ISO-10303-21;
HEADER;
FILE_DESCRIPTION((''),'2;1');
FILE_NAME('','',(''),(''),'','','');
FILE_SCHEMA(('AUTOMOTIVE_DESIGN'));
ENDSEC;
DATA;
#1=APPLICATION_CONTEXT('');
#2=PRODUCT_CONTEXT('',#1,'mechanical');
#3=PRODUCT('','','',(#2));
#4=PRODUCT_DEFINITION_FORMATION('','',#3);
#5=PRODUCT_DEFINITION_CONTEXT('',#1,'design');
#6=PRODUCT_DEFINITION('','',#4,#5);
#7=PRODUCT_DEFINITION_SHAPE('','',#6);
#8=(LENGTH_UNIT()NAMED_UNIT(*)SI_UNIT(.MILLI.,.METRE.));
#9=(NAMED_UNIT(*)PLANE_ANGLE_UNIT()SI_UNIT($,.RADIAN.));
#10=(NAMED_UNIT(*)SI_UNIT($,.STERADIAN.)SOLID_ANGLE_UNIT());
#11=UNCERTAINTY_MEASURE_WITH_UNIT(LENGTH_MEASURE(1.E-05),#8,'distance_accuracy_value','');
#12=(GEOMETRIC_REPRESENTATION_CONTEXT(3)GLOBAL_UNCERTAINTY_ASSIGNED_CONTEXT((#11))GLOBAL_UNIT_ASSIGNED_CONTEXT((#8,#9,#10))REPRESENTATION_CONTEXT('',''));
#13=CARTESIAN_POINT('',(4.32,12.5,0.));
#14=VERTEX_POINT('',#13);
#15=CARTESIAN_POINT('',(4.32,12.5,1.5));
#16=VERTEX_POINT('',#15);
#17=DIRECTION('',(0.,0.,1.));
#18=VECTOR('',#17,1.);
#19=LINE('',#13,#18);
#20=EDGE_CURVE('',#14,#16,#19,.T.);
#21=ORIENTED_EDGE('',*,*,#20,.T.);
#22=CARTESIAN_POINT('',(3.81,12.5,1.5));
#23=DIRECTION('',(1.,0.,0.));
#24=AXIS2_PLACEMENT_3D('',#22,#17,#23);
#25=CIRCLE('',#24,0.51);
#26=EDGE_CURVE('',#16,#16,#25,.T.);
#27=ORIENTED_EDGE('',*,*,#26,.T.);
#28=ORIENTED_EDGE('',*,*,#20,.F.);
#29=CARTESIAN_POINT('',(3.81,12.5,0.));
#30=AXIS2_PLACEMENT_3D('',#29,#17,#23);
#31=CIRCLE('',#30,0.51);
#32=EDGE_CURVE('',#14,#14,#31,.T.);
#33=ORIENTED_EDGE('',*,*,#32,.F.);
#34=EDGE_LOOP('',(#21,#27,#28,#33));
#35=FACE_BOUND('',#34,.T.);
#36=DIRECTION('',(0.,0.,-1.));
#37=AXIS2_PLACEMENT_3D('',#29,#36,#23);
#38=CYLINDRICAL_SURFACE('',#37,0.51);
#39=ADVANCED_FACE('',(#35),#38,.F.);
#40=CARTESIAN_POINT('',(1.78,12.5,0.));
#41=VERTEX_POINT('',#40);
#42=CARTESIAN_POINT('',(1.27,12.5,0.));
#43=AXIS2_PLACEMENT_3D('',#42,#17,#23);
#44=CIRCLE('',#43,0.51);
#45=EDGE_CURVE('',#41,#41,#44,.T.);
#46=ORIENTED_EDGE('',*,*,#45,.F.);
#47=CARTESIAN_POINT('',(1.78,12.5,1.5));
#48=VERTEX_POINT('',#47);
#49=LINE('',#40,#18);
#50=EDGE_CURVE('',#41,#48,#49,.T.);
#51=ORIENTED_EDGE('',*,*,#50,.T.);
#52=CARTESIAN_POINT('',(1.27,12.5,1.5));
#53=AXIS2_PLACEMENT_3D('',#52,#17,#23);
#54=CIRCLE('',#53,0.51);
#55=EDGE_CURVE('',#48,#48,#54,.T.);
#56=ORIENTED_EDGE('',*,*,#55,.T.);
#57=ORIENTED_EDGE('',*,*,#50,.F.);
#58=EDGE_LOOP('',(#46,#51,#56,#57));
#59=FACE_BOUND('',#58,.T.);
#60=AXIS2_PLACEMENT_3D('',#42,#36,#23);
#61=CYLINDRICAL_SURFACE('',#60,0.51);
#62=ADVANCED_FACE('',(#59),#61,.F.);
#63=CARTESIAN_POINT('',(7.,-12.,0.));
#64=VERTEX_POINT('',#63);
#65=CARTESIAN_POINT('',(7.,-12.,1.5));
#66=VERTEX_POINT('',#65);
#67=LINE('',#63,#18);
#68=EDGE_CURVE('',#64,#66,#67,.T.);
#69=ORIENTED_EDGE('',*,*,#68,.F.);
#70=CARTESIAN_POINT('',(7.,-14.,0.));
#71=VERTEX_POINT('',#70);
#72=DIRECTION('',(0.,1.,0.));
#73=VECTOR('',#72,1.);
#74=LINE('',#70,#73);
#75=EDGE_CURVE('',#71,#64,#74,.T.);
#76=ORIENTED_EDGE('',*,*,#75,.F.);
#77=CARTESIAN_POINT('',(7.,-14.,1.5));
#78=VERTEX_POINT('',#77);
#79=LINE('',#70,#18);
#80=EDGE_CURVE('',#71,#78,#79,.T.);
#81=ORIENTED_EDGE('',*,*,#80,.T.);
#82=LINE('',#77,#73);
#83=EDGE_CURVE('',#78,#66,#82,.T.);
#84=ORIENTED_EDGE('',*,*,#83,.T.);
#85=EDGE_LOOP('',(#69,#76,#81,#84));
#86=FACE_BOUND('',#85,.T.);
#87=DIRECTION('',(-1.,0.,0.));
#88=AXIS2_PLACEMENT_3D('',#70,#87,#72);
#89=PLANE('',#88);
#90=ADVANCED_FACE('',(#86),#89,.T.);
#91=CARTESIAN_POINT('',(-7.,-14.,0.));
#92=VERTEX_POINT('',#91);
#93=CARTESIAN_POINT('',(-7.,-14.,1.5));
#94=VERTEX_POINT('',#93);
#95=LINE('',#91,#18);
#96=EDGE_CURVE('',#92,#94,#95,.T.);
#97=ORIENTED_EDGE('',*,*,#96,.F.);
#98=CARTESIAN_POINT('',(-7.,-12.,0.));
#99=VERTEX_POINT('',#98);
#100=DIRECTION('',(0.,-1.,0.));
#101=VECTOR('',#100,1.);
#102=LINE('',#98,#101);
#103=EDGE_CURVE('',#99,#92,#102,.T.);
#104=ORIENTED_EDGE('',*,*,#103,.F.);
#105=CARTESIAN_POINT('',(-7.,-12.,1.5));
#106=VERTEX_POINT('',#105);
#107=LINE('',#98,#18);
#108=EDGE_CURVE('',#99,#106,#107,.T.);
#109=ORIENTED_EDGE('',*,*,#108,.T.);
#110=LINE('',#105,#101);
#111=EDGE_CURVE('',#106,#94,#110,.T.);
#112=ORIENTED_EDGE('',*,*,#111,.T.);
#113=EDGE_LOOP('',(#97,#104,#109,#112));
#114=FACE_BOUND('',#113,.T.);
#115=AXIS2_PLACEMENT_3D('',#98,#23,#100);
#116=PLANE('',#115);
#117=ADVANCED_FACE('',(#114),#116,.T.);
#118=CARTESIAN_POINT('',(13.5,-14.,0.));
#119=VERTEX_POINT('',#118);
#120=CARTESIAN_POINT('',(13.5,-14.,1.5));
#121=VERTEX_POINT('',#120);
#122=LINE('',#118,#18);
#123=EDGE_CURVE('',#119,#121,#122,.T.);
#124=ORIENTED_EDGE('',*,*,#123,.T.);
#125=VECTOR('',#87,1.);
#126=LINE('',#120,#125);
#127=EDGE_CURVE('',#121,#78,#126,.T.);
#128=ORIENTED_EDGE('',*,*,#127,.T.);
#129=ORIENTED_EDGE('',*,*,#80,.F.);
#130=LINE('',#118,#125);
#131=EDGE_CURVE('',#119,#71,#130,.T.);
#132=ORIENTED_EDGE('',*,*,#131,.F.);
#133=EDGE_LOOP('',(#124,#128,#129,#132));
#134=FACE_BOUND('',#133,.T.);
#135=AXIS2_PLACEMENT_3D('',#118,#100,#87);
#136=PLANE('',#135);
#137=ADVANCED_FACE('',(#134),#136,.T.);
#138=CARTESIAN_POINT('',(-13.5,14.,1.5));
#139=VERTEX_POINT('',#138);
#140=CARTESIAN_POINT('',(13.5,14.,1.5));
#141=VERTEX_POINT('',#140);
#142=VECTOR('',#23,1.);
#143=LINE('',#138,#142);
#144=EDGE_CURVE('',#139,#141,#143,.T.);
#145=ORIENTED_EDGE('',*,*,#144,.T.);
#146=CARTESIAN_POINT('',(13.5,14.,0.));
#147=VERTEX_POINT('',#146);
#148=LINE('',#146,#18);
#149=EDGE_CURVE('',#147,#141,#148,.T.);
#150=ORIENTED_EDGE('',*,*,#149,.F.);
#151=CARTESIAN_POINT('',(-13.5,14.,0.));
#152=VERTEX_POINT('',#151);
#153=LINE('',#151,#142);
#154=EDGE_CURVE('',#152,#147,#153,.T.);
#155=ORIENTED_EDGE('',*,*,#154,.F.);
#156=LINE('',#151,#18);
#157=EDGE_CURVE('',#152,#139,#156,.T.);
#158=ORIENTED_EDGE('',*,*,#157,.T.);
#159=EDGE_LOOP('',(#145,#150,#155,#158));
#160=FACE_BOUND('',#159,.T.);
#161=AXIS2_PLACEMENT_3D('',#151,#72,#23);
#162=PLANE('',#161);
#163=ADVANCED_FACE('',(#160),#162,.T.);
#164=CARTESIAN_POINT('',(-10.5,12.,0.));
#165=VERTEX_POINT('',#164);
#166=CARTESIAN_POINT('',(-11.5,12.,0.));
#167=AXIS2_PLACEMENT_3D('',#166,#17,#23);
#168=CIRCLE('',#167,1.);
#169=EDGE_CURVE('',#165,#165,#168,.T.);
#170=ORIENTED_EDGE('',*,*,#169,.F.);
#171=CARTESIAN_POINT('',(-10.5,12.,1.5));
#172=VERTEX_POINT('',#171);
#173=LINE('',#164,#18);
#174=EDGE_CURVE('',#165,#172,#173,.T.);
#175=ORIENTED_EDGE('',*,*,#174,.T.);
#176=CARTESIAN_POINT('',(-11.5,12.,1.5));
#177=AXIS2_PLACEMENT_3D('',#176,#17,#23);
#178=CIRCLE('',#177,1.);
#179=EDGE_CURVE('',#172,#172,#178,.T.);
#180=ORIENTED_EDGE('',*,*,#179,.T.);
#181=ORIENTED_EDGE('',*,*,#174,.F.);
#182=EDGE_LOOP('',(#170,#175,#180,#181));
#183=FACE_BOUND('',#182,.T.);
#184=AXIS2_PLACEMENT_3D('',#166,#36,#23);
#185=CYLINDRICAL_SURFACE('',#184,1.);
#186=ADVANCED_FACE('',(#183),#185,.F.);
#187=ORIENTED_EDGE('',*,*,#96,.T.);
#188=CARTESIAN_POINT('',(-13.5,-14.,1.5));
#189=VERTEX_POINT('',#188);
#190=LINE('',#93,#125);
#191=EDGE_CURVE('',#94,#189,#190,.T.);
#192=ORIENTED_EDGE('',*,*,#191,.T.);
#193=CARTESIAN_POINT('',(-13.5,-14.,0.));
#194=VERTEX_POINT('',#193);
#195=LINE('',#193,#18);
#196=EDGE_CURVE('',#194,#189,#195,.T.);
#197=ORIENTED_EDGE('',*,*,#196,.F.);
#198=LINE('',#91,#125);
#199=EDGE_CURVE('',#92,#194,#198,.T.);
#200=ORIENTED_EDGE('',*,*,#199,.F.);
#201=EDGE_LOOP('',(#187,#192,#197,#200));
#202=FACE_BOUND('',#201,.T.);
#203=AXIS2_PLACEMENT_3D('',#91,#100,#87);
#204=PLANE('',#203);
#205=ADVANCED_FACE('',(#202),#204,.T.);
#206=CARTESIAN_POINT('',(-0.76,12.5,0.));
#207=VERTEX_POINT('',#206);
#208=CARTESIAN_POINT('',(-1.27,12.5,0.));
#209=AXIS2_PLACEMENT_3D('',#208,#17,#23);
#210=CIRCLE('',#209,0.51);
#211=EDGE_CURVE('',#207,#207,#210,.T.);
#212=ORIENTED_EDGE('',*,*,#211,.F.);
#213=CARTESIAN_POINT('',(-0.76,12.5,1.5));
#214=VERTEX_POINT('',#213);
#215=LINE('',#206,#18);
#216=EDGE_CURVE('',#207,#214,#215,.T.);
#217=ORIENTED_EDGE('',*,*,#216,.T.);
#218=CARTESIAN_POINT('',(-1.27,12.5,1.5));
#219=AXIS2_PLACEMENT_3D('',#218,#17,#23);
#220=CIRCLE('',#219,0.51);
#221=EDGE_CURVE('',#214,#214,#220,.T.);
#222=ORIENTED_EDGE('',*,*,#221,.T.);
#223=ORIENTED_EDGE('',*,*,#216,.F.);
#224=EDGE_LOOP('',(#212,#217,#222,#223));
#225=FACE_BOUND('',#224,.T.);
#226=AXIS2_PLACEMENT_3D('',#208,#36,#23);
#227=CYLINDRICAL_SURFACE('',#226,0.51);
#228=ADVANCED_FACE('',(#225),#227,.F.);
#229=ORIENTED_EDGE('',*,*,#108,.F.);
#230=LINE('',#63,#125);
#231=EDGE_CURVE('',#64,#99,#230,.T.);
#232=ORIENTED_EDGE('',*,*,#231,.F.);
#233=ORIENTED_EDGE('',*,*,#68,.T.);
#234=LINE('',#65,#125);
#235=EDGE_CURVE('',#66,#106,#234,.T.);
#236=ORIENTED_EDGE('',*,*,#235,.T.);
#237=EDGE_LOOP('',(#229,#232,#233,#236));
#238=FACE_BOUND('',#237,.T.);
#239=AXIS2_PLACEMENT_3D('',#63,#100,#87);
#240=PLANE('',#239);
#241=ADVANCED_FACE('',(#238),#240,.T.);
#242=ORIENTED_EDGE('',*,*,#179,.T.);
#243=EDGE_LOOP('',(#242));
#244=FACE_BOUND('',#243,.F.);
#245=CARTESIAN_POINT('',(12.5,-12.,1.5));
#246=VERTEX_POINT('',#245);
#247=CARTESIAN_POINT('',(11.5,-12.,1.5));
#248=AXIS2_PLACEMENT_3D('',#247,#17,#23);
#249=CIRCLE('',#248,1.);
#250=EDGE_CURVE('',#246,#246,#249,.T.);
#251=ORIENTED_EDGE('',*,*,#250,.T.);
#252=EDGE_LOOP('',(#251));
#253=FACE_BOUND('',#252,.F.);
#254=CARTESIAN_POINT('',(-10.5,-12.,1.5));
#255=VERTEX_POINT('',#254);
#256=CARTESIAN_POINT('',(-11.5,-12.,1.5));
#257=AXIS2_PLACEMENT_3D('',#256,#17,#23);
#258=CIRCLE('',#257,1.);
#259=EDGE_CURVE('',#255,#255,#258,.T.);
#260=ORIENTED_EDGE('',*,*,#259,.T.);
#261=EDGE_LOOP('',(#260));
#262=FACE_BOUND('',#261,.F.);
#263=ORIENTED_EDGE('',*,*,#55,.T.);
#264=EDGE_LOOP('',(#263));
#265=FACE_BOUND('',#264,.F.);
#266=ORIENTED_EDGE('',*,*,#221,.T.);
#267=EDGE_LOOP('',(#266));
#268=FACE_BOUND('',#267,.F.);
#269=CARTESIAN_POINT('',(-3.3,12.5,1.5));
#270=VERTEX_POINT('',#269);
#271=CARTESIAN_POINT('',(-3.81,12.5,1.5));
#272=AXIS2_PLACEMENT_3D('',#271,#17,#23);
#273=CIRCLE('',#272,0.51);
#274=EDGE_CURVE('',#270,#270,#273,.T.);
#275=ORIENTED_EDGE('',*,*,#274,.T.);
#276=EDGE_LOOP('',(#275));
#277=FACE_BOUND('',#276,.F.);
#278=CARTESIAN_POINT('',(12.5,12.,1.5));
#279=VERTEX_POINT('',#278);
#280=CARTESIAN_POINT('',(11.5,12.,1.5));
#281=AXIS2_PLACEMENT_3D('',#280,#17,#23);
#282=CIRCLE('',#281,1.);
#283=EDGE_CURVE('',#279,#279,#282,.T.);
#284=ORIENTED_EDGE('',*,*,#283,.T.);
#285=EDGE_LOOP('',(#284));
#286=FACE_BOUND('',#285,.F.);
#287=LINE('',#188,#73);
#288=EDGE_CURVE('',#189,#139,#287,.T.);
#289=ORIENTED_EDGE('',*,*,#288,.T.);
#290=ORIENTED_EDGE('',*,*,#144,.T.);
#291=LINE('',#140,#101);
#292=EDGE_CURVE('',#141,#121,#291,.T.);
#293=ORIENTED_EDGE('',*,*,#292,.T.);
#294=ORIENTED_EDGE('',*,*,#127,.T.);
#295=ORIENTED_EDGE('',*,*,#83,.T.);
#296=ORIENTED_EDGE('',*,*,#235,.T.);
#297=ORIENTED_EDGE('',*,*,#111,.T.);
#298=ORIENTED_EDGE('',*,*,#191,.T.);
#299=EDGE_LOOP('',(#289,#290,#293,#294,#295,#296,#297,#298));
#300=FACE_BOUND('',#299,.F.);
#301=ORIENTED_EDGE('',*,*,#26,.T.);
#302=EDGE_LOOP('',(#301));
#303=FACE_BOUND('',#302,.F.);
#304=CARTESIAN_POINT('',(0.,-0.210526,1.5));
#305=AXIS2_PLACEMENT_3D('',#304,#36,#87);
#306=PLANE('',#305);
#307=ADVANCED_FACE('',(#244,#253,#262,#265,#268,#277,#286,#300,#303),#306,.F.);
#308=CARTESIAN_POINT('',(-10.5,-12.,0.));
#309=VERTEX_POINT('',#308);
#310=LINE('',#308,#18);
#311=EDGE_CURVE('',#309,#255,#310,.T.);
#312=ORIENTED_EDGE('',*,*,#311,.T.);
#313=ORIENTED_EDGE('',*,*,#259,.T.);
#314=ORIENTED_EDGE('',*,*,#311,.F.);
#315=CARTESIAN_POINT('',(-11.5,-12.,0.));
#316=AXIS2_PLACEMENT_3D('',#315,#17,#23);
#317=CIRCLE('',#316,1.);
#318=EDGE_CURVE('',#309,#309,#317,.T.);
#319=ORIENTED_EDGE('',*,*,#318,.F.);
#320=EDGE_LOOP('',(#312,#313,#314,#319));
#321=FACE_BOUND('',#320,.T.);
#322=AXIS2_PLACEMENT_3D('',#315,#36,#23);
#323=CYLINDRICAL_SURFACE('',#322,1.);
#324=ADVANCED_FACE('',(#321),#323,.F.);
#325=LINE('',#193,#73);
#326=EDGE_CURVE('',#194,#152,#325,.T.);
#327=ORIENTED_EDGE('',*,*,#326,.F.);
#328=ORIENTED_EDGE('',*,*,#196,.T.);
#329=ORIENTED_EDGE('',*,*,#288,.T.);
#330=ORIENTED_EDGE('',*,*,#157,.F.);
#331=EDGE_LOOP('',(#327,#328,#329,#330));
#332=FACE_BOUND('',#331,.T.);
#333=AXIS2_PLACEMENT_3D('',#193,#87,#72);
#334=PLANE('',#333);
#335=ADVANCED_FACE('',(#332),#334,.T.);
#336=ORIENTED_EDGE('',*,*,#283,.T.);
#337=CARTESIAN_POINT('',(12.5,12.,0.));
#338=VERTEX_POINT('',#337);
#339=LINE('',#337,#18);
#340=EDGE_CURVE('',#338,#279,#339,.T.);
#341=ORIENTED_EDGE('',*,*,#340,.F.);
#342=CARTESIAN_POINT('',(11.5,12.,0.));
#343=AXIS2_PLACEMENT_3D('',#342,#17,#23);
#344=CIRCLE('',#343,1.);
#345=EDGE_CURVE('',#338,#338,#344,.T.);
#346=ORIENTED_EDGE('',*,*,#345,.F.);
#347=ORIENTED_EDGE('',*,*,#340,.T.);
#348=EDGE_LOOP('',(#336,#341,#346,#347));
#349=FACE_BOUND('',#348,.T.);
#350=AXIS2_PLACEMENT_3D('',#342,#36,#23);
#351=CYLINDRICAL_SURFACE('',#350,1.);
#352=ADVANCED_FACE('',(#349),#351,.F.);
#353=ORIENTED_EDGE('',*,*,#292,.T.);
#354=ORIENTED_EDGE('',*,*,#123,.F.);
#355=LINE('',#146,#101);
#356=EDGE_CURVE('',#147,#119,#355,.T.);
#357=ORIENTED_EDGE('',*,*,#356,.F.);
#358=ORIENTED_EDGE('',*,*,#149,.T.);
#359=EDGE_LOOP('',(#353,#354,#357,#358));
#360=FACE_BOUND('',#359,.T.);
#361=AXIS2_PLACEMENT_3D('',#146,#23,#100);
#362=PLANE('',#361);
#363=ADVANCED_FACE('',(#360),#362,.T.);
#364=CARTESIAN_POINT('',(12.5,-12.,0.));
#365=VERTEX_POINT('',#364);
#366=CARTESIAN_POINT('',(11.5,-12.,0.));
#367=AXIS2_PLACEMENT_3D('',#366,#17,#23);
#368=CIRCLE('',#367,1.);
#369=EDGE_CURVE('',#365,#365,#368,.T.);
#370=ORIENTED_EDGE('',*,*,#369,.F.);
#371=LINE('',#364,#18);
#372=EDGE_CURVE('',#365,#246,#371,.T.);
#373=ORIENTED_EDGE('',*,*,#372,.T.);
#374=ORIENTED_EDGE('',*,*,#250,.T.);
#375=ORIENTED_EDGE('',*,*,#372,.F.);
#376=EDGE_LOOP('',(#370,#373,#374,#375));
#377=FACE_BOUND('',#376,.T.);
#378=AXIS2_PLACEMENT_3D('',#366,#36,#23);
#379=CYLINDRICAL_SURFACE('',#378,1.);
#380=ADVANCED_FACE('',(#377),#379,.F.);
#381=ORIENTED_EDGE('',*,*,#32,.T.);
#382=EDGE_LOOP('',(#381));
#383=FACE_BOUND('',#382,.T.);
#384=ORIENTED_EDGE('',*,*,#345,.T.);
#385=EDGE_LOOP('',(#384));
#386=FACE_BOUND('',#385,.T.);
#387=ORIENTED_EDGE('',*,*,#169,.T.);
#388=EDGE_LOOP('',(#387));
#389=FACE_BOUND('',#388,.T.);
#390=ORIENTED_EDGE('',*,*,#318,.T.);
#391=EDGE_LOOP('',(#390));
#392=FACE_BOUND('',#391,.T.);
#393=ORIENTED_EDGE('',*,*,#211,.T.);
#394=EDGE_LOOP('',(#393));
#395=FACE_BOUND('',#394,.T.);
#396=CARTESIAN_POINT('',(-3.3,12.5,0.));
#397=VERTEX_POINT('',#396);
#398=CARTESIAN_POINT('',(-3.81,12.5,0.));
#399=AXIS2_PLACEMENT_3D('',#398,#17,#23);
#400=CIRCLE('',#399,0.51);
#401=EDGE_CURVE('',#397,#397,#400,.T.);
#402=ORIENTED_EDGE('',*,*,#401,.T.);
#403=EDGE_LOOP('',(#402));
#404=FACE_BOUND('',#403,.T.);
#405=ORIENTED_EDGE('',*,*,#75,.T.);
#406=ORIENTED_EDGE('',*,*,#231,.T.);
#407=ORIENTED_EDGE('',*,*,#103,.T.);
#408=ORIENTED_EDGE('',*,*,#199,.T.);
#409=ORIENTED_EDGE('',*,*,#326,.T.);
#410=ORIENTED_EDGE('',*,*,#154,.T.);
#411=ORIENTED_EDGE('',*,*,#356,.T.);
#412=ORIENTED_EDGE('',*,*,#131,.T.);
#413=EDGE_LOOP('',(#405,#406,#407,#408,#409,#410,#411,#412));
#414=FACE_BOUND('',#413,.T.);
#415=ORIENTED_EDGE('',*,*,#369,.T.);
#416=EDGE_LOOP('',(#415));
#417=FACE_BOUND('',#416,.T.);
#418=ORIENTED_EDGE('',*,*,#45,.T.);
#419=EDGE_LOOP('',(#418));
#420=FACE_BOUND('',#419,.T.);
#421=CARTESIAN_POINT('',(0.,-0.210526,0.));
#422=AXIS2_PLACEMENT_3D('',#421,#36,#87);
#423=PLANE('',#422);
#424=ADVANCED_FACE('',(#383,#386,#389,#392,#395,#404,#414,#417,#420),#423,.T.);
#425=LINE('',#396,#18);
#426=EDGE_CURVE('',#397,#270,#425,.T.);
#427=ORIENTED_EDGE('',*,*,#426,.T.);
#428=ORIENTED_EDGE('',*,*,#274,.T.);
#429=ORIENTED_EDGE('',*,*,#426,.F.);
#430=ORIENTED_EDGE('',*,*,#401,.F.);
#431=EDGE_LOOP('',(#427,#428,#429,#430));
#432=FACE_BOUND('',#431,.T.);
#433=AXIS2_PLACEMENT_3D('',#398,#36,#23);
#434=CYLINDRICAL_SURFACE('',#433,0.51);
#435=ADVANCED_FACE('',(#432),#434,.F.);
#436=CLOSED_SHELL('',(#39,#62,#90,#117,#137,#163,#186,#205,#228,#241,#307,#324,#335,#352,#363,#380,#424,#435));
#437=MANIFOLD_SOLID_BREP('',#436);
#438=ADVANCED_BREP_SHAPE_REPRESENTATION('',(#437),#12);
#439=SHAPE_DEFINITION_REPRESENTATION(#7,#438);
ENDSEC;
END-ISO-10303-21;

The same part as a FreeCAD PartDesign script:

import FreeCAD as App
import Part
import Sketcher

V = App.Vector


def add_polygon(sketch, points):
    """Adds a closed chain of lines whose ends are joined by coincident constraints."""
    first, n = sketch.GeometryCount, len(points)
    for a, b in zip(points, points[1:] + points[:1]):
        sketch.addGeometry(Part.LineSegment(App.Vector(*a, 0), App.Vector(*b, 0)), False)
    for i in range(n):
        sketch.addConstraint(Sketcher.Constraint("Coincident", first + i, 2, first + (i + 1) % n, 1))

doc = App.newDocument("Part")
body = doc.addObject("PartDesign::Body", "Body")

# Sketch on XY plane
sketch1 = body.newObject("Sketcher::SketchObject", "Sketch")
sketch1.AttachmentSupport = (doc.getObject("XY_Plane"), [""])
sketch1.MapMode = "FlatFace"
add_polygon(sketch1, [(13.5, 14), (-13.5, 14), (-13.5, -14), (-7, -14), (-7, -12), (7, -12), (7, -14), (13.5, -14)])  # lines 0-7
sketch1.addGeometry(Part.Circle(V(11.5, -12, 0), V(0, 0, 1), 1), False)  # 8
sketch1.addGeometry(Part.Circle(V(-11.5, -12, 0), V(0, 0, 1), 1), False)  # 9
sketch1.addGeometry(Part.Circle(V(11.5, 12, 0), V(0, 0, 1), 1), False)  # 10
sketch1.addGeometry(Part.Circle(V(3.8, 12.5, 0), V(0, 0, 1), 0.5), False)  # 11
sketch1.addGeometry(Part.Circle(V(1.3, 12.5, 0), V(0, 0, 1), 0.5), False)  # 12
sketch1.addGeometry(Part.Circle(V(-1.3, 12.5, 0), V(0, 0, 1), 0.5), False)  # 13
sketch1.addGeometry(Part.Circle(V(-3.8, 12.5, 0), V(0, 0, 1), 0.5), False)  # 14
sketch1.addGeometry(Part.Circle(V(-11.5, 12, 0), V(0, 0, 1), 1), False)  # 15
sketch1.addConstraint([
    Sketcher.Constraint("Horizontal", 0),
    Sketcher.Constraint("Vertical", 1),
    Sketcher.Constraint("Horizontal", 2),
    Sketcher.Constraint("Vertical", 3),
    Sketcher.Constraint("Horizontal", 4),
    Sketcher.Constraint("Vertical", 5),
    Sketcher.Constraint("Horizontal", 6),
    Sketcher.Constraint("Vertical", 7),
    Sketcher.Constraint("Equal", 8, 9),
    Sketcher.Constraint("Equal", 9, 10),
    Sketcher.Constraint("Equal", 11, 12),
    Sketcher.Constraint("Equal", 12, 13),
    Sketcher.Constraint("Equal", 13, 14),
    Sketcher.Constraint("Equal", 10, 15),
    Sketcher.Constraint("Symmetric", 9, 3, 10, 3, -1, 1),
    Sketcher.Constraint("Symmetric", 8, 3, 15, 3, -1, 1),
    Sketcher.Constraint("Symmetric", 0, 2, 6, 2, -1, 1),
    Sketcher.Constraint("Symmetric", 8, 3, 9, 3, -2),
    Sketcher.Constraint("Symmetric", 12, 3, 13, 3, -2),
    Sketcher.Constraint("Symmetric", 11, 3, 14, 3, -2),
    Sketcher.Constraint("Symmetric", 2, 2, 5, 2, -2),
    Sketcher.Constraint("Horizontal", 11, 3, 12, 3),
    Sketcher.Constraint("Horizontal", 9, 3, 3, 2),
    Sketcher.Constraint("Diameter", 8, 2.0),
    Sketcher.Constraint("Diameter", 11, 1.02),
    Sketcher.Constraint("DistanceX", 0, 2, 0, 1, 27.0),
    Sketcher.Constraint("DistanceX", 4, 1, 4, 2, 14.0),
    Sketcher.Constraint("DistanceY", 1, 2, 1, 1, 28.0),
    Sketcher.Constraint("DistanceY", 3, 1, 3, 2, 2.0),
    Sketcher.Constraint("DistanceX", 9, 3, 8, 3, 23.0),
    Sketcher.Constraint("DistanceY", -1, 1, 11, 3, 12.5),
    Sketcher.Constraint("DistanceX", -1, 1, 11, 3, 3.81),
    Sketcher.Constraint("DistanceX", -1, 1, 12, 3, 1.27),
])
pad1 = body.newObject("PartDesign::Pad", "Pad")
pad1.Profile = sketch1
pad1.Length = 1.5

doc.recompute()
